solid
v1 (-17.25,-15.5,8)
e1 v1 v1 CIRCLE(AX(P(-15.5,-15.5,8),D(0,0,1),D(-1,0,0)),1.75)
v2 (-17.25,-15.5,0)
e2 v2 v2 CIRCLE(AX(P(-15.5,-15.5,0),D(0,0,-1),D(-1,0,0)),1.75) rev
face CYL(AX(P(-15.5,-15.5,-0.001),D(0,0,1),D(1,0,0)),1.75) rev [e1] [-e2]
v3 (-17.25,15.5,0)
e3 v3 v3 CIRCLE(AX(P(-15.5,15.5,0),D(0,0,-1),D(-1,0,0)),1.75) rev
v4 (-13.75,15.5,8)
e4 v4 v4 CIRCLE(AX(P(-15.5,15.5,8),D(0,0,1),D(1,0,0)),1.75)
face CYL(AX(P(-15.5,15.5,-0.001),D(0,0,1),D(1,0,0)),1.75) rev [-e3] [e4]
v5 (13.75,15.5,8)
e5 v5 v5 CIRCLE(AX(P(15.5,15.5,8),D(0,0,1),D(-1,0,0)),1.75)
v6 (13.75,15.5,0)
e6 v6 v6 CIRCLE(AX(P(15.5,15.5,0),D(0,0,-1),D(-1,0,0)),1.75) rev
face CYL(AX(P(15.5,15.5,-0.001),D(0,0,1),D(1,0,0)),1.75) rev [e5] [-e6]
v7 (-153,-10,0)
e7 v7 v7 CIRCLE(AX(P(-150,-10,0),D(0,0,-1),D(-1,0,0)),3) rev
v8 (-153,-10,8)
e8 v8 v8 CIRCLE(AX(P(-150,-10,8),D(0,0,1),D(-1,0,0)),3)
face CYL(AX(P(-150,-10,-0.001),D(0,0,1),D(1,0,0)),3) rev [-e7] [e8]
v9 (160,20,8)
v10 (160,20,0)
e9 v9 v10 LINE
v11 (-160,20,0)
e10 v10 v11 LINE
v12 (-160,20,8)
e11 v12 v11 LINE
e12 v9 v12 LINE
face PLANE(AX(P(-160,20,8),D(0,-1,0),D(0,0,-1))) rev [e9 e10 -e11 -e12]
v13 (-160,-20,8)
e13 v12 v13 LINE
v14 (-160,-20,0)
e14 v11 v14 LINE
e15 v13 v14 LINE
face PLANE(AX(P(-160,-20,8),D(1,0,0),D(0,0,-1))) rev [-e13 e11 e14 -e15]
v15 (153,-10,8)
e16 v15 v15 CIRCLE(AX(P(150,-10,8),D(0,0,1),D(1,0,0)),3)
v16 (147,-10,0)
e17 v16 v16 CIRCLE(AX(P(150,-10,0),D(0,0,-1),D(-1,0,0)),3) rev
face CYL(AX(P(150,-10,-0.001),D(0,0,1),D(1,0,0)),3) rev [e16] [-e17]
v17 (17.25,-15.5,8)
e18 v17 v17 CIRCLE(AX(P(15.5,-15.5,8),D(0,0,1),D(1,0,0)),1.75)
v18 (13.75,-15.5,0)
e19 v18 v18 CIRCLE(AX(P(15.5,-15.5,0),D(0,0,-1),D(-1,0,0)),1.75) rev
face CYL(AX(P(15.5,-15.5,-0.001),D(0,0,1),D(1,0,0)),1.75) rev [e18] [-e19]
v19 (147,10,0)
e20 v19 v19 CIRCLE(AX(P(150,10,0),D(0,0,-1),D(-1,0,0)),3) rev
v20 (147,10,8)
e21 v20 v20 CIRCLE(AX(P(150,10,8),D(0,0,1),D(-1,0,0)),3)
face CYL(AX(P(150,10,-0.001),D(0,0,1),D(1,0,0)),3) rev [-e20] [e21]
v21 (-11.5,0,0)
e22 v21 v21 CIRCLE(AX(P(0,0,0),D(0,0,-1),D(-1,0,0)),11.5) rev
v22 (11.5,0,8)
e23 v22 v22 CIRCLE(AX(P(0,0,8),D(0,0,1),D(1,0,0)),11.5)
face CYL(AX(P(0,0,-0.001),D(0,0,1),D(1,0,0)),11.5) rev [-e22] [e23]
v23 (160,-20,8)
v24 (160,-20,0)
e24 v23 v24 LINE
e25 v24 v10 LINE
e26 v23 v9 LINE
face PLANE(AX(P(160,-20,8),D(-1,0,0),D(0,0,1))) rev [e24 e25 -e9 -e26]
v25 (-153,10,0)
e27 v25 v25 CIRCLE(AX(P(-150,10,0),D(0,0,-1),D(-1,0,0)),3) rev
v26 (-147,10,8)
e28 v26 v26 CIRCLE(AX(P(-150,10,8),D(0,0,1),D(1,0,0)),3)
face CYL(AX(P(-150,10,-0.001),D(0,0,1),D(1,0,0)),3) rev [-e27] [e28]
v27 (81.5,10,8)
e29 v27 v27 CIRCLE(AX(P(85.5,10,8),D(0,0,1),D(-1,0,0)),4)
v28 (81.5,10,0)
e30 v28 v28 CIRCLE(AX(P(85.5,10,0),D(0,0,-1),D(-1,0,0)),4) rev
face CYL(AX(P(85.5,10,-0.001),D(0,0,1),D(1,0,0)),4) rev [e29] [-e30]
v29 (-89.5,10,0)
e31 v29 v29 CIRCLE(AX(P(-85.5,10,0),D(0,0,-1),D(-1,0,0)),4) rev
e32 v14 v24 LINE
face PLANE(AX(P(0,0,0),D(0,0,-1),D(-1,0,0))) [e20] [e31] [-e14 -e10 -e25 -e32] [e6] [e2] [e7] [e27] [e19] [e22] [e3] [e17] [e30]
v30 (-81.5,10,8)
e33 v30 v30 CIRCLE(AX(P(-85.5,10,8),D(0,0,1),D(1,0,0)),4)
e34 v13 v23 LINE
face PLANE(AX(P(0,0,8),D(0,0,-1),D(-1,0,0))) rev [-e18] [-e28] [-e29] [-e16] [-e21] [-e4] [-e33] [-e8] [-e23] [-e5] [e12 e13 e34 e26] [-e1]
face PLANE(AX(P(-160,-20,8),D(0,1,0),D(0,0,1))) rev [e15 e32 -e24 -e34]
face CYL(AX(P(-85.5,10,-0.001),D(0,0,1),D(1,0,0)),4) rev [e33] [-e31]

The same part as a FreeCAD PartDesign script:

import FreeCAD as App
import Part
import Sketcher

V = App.Vector

doc = App.newDocument("Part")
body = doc.addObject("PartDesign::Body", "Body")

# Sketch on XY plane
sketch1 = doc.addObject("Sketcher::SketchObject", "Sketch")
body.addObject(sketch1)
sketch1.AttachmentSupport = (doc.XY_Plane, [""])
sketch1.MapMode = "FlatFace"
sketch1.addGeometry(Part.LineSegment(V(-160, 20, 0), V(-160, -20, 0)), False)
sketch1.addGeometry(Part.LineSegment(V(-160, -20, 0), V(160, -20, 0)), False)
sketch1.addGeometry(Part.LineSegment(V(160, -20, 0), V(160, 20, 0)), False)
sketch1.addGeometry(Part.LineSegment(V(160, 20, 0), V(-160, 20, 0)), False)
sketch1.addConstraint(Sketcher.Constraint("Coincident", 0, 2, 1, 1))
sketch1.addConstraint(Sketcher.Constraint("Coincident", 1, 2, 2, 1))
sketch1.addConstraint(Sketcher.Constraint("Coincident", 2, 2, 3, 1))
sketch1.addConstraint(Sketcher.Constraint("Coincident", 3, 2, 0, 1))
sketch1.addConstraint(Sketcher.Constraint("Vertical", 0))
sketch1.addConstraint(Sketcher.Constraint("Horizontal", 1))
sketch1.addConstraint(Sketcher.Constraint("Vertical", 2))
sketch1.addConstraint(Sketcher.Constraint("Horizontal", 3))
sketch1.addConstraint(Sketcher.Constraint("Symmetric", 0, 2, 2, 2, -1, 1))
sketch1.addConstraint(Sketcher.Constraint("DistanceX", 1, 1, 1, 2, 320.0))
sketch1.addConstraint(Sketcher.Constraint("DistanceY", 0, 2, 0, 1, 40.0))
pad1 = doc.addObject("PartDesign::Pad", "Pad")
body.addObject(pad1)
pad1.Profile = sketch1
pad1.Length = 8

# Sketch on XY plane
sketch2 = doc.addObject("Sketcher::SketchObject", "Sketch001")
body.addObject(sketch2)
sketch2.AttachmentSupport = (doc.XY_Plane, [""])
sketch2.MapMode = "FlatFace"
sketch2.AttachmentOffset = App.Placement(V(0, 0, 8), App.Rotation())
sketch2.addGeometry(Part.Circle(V(-150, 10, 0), V(0, 0, 1), 3), False)
sketch2.addConstraint(Sketcher.Constraint("Diameter", 0, 6.0))
sketch2.addConstraint(Sketcher.Constraint("DistanceX", 0, 3, -1, 1, 150.0))
sketch2.addConstraint(Sketcher.Constraint("DistanceY", -1, 1, 0, 3, 10.0))
pocket1 = doc.addObject("PartDesign::Pocket", "Pocket")
body.addObject(pocket1)
pocket1.Profile = sketch2
pocket1.Type = "UpToFirst"

# Sketch on XY plane
sketch3 = doc.addObject("Sketcher::SketchObject", "Sketch002")
body.addObject(sketch3)
sketch3.AttachmentSupport = (doc.XY_Plane, [""])
sketch3.MapMode = "FlatFace"
sketch3.AttachmentOffset = App.Placement(V(0, 0, 8), App.Rotation())
sketch3.addGeometry(Part.Circle(V(-150, -10, 0), V(0, 0, 1), 3), False)
sketch3.addConstraint(Sketcher.Constraint("Diameter", 0, 6.0))
sketch3.addConstraint(Sketcher.Constraint("DistanceX", 0, 3, -1, 1, 150.0))
sketch3.addConstraint(Sketcher.Constraint("DistanceY", 0, 3, -1, 1, 10.0))
pocket2 = doc.addObject("PartDesign::Pocket", "Pocket001")
body.addObject(pocket2)
pocket2.Profile = sketch3
pocket2.Type = "UpToFirst"

# Sketch on XY plane
sketch4 = doc.addObject("Sketcher::SketchObject", "Sketch003")
body.addObject(sketch4)
sketch4.AttachmentSupport = (doc.XY_Plane, [""])
sketch4.MapMode = "FlatFace"
sketch4.AttachmentOffset = App.Placement(V(0, 0, 8), App.Rotation())
sketch4.addGeometry(Part.Circle(V(150, -10, 0), V(0, 0, 1), 3), False)
sketch4.addConstraint(Sketcher.Constraint("Diameter", 0, 6.0))
sketch4.addConstraint(Sketcher.Constraint("DistanceX", -1, 1, 0, 3, 150.0))
sketch4.addConstraint(Sketcher.Constraint("DistanceY", 0, 3, -1, 1, 10.0))
pocket3 = doc.addObject("PartDesign::Pocket", "Pocket002")
body.addObject(pocket3)
pocket3.Profile = sketch4
pocket3.Type = "UpToFirst"

# Sketch on XY plane
sketch5 = doc.addObject("Sketcher::SketchObject", "Sketch004")
body.addObject(sketch5)
sketch5.AttachmentSupport = (doc.XY_Plane, [""])
sketch5.MapMode = "FlatFace"
sketch5.AttachmentOffset = App.Placement(V(0, 0, 8), App.Rotation())
sketch5.addGeometry(Part.Circle(V(150, 10, 0), V(0, 0, 1), 3), False)
sketch5.addConstraint(Sketcher.Constraint("Diameter", 0, 6.0))
sketch5.addConstraint(Sketcher.Constraint("DistanceX", -1, 1, 0, 3, 150.0))
sketch5.addConstraint(Sketcher.Constraint("DistanceY", -1, 1, 0, 3, 10.0))
pocket4 = doc.addObject("PartDesign::Pocket", "Pocket003")
body.addObject(pocket4)
pocket4.Profile = sketch5
pocket4.Type = "UpToFirst"

# Sketch on XY plane
sketch6 = doc.addObject("Sketcher::SketchObject", "Sketch005")
body.addObject(sketch6)
sketch6.AttachmentSupport = (doc.XY_Plane, [""])
sketch6.MapMode = "FlatFace"
sketch6.AttachmentOffset = App.Placement(V(0, 0, 8), App.Rotation())
sketch6.addGeometry(Part.Circle(V(-85.5, 10, 0), V(0, 0, 1), 4), False)
sketch6.addConstraint(Sketcher.Constraint("Diameter", 0, 8.0))
sketch6.addConstraint(Sketcher.Constraint("DistanceY", -1, 1, 0, 3, 10.0))
sketch6.addConstraint(Sketcher.Constraint("DistanceX", 0, 3, -1, 1, 85.5))
pocket5 = doc.addObject("PartDesign::Pocket", "Pocket004")
body.addObject(pocket5)
pocket5.Profile = sketch6
pocket5.Type = "UpToFirst"

# Sketch on XY plane
sketch7 = doc.addObject("Sketcher::SketchObject", "Sketch006")
body.addObject(sketch7)
sketch7.AttachmentSupport = (doc.XY_Plane, [""])
sketch7.MapMode = "FlatFace"
sketch7.AttachmentOffset = App.Placement(V(0, 0, 8), App.Rotation())
sketch7.addGeometry(Part.Circle(V(85.5, 10, 0), V(0, 0, 1), 4), False)
sketch7.addConstraint(Sketcher.Constraint("Diameter", 0, 8.0))
sketch7.addConstraint(Sketcher.Constraint("DistanceY", -1, 1, 0, 3, 10.0))
sketch7.addConstraint(Sketcher.Constraint("DistanceX", -1, 1, 0, 3, 85.5))
pocket6 = doc.addObject("PartDesign::Pocket", "Pocket005")
body.addObject(pocket6)
pocket6.Profile = sketch7
pocket6.Type = "UpToFirst"

# Sketch on XY plane
sketch8 = doc.addObject("Sketcher::SketchObject", "Sketch007")
body.addObject(sketch8)
sketch8.AttachmentSupport = (doc.XY_Plane, [""])
sketch8.MapMode = "FlatFace"
sketch8.AttachmentOffset = App.Placement(V(0, 0, 8), App.Rotation())
sketch8.addGeometry(Part.Circle(V(0, 0, 0), V(0, 0, 1), 12), False)
sketch8.addConstraint(Sketcher.Constraint("Coincident", 0, 3, -1, 1))
sketch8.addConstraint(Sketcher.Constraint("Diameter", 0, 23.0))
pocket7 = doc.addObject("PartDesign::Pocket", "Pocket006")
body.addObject(pocket7)
pocket7.Profile = sketch8
pocket7.Type = "UpToFirst"

# Sketch on XY plane
sketch9 = doc.addObject("Sketcher::SketchObject", "Sketch008")
body.addObject(sketch9)
sketch9.AttachmentSupport = (doc.XY_Plane, [""])
sketch9.MapMode = "FlatFace"
sketch9.AttachmentOffset = App.Placement(V(0, 0, 8), App.Rotation())
sketch9.addGeometry(Part.Circle(V(-15.5, 15.5, 0), V(0, 0, 1), 1.8), False)
sketch9.addConstraint(Sketcher.Constraint("Diameter", 0, 3.5))
sketch9.addConstraint(Sketcher.Constraint("DistanceX", 0, 3, -1, 1, 15.5))
sketch9.addConstraint(Sketcher.Constraint("DistanceY", -1, 1, 0, 3, 15.5))
pocket8 = doc.addObject("PartDesign::Pocket", "Pocket007")
body.addObject(pocket8)
pocket8.Profile = sketch9
pocket8.Type = "UpToFirst"

# Sketch on XY plane
sketch10 = doc.addObject("Sketcher::SketchObject", "Sketch009")
body.addObject(sketch10)
sketch10.AttachmentSupport = (doc.XY_Plane, [""])
sketch10.MapMode = "FlatFace"
sketch10.AttachmentOffset = App.Placement(V(0, 0, 8), App.Rotation())
sketch10.addGeometry(Part.Circle(V(15.5, 15.5, 0), V(0, 0, 1), 1.8), False)
sketch10.addConstraint(Sketcher.Constraint("Diameter", 0, 3.5))
sketch10.addConstraint(Sketcher.Constraint("DistanceX", -1, 1, 0, 3, 15.5))
sketch10.addConstraint(Sketcher.Constraint("DistanceY", -1, 1, 0, 3, 15.5))
pocket9 = doc.addObject("PartDesign::Pocket", "Pocket008")
body.addObject(pocket9)
pocket9.Profile = sketch10
pocket9.Type = "UpToFirst"

# Sketch on XY plane
sketch11 = doc.addObject("Sketcher::SketchObject", "Sketch010")
body.addObject(sketch11)
sketch11.AttachmentSupport = (doc.XY_Plane, [""])
sketch11.MapMode = "FlatFace"
sketch11.AttachmentOffset = App.Placement(V(0, 0, 8), App.Rotation())
sketch11.addGeometry(Part.Circle(V(-15.5, -15.5, 0), V(0, 0, 1), 1.8), False)
sketch11.addConstraint(Sketcher.Constraint("Diameter", 0, 3.5))
sketch11.addConstraint(Sketcher.Constraint("DistanceX", 0, 3, -1, 1, 15.5))
sketch11.addConstraint(Sketcher.Constraint("DistanceY", 0, 3, -1, 1, 15.5))
pocket10 = doc.addObject("PartDesign::Pocket", "Pocket009")
body.addObject(pocket10)
pocket10.Profile = sketch11
pocket10.Type = "UpToFirst"

# Sketch on XY plane
sketch12 = doc.addObject("Sketcher::SketchObject", "Sketch011")
body.addObject(sketch12)
sketch12.AttachmentSupport = (doc.XY_Plane, [""])
sketch12.MapMode = "FlatFace"
sketch12.AttachmentOffset = App.Placement(V(0, 0, 8), App.Rotation())
sketch12.addGeometry(Part.Circle(V(15.5, -15.5, 0), V(0, 0, 1), 1.8), False)
sketch12.addConstraint(Sketcher.Constraint("Diameter", 0, 3.5))
sketch12.addConstraint(Sketcher.Constraint("DistanceX", -1, 1, 0, 3, 15.5))
sketch12.addConstraint(Sketcher.Constraint("DistanceY", 0, 3, -1, 1, 15.5))
pocket11 = doc.addObject("PartDesign::Pocket", "Pocket010")
body.addObject(pocket11)
pocket11.Profile = sketch12
pocket11.Type = "UpToFirst"

doc.recompute()
